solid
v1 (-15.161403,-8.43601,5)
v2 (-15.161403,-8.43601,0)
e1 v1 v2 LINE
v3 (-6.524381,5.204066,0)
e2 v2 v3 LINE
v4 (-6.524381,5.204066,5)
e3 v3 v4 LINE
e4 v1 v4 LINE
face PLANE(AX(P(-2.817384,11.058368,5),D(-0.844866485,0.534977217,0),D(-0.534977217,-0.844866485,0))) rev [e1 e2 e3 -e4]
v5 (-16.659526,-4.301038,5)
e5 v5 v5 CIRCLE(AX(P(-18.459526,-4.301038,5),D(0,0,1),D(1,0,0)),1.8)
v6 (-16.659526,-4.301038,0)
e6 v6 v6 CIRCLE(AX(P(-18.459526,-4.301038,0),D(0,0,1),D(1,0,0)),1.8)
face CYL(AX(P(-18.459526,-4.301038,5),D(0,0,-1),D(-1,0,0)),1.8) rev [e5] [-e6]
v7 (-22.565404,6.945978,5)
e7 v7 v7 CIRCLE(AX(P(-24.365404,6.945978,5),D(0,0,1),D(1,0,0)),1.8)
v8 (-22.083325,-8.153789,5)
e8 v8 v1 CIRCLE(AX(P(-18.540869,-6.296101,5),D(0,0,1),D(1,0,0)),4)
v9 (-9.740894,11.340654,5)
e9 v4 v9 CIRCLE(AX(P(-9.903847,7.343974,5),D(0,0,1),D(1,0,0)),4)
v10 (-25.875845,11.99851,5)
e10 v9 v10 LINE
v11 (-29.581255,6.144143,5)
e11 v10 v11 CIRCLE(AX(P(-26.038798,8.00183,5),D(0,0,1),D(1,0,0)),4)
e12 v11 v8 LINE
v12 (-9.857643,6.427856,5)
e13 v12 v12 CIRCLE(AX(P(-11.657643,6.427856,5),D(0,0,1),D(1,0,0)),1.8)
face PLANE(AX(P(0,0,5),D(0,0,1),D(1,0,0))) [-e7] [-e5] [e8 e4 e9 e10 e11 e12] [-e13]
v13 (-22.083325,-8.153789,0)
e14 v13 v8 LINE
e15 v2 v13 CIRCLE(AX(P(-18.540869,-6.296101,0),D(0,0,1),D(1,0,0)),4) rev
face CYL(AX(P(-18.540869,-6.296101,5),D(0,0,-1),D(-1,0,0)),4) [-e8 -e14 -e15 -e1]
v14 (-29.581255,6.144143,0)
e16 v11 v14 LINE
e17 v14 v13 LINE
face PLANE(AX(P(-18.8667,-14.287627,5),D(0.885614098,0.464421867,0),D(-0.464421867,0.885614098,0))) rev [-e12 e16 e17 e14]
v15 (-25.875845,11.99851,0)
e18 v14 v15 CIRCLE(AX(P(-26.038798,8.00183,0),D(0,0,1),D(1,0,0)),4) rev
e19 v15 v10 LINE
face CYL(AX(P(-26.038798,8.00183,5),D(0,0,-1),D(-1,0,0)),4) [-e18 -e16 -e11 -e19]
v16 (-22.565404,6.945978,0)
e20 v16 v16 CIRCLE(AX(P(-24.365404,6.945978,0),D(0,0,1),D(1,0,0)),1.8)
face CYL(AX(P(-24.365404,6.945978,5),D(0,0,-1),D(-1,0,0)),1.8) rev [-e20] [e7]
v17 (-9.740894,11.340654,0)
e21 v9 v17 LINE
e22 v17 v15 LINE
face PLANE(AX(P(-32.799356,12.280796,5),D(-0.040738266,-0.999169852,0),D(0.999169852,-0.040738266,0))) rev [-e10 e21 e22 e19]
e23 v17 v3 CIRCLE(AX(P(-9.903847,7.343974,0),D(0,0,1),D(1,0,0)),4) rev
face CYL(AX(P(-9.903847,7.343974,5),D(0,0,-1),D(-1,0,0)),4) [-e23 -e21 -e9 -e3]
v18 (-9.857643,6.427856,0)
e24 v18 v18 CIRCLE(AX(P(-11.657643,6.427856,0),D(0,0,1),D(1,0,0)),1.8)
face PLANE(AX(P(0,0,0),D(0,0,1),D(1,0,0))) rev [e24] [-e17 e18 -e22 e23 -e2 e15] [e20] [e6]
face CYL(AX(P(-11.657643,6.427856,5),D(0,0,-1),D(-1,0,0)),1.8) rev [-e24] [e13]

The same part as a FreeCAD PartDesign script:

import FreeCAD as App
import Part
import Sketcher


def edges_at(feature, points):
    """Names of the edges that pass closest to the given points."""
    edges = feature.Shape.Edges
    near = lambda p: min(range(len(edges)), key=lambda i: edges[i].distToShape(Part.Vertex(*p))[0])
    return sorted({f"Edge{near(p) + 1}" for p in points})

doc = App.newDocument("Part")
body = doc.addObject("PartDesign::Body", "Body")

# Sketch on XY plane
sketch1 = doc.addObject("Sketcher::SketchObject", "Sketch")
body.addObject(sketch1)
sketch1.AttachmentSupport = (doc.XY_Plane, [""])
sketch1.MapMode = "FlatFace"
sketch1.addGeometry(Part.LineSegment(App.Vector(-2.8, 11.1, 0), App.Vector(-32.8, 12.3, 0)), False)
sketch1.addGeometry(Part.LineSegment(App.Vector(-32.8, 12.3, 0), App.Vector(-18.9, -14.3, 0)), False)
sketch1.addGeometry(Part.LineSegment(App.Vector(-18.9, -14.3, 0), App.Vector(-2.8, 11.1, 0)), False)
sketch1.addGeometry(Part.Circle(App.Vector(-18.5, -4.3, 0), App.Vector(0, 0, 1), 1.8), False)
sketch1.addGeometry(Part.Circle(App.Vector(-11.7, 6.4, 0), App.Vector(0, 0, 1), 1.8), False)
sketch1.addGeometry(Part.Circle(App.Vector(-24.4, 6.9, 0), App.Vector(0, 0, 1), 1.8), False)
sketch1.addConstraint(Sketcher.Constraint("Coincident", 0, 2, 1, 1))
sketch1.addConstraint(Sketcher.Constraint("Coincident", 1, 2, 2, 1))
sketch1.addConstraint(Sketcher.Constraint("Coincident", 2, 2, 0, 1))
sketch1.addConstraint(Sketcher.Constraint("Equal", 3, 4))
sketch1.addConstraint(Sketcher.Constraint("Equal", 4, 5))
sketch1.addConstraint(Sketcher.Constraint("Equal", 1, 2))
sketch1.addConstraint(Sketcher.Constraint("Diameter", 3, 3.6))
sketch1.addConstraint(Sketcher.Constraint("Distance", 1, 30.0))
sketch1.addConstraint(Sketcher.Constraint("DistanceX", 1, 2, -1, 1, 18.8667))
sketch1.addConstraint(Sketcher.Constraint("DistanceX", 5, 3, 4, 3, 12.70776))
sketch1.addConstraint(Sketcher.Constraint("DistanceY", 5, 3, 0, 2, 5.334818))
sketch1.addConstraint(Sketcher.Constraint("DistanceX", 0, 2, 3, 3, 14.33983))
sketch1.addConstraint(Sketcher.Constraint("DistanceY", 4, 3, 0, 2, 5.85294))
sketch1.addConstraint(Sketcher.Constraint("DistanceY", 1, 2, 3, 3, 9.986589))
sketch1.addConstraint(Sketcher.Constraint("DistanceX", 4, 3, 2, 2, 8.84026))
sketch1.addConstraint(Sketcher.Constraint("DistanceY", 4, 3, 2, 2, 4.630512))
sketch1.addConstraint(Sketcher.Constraint("Distance", 0, 30.006883))
sketch1.addConstraint(Sketcher.Constraint("DistanceY", 3, 3, -1, 1, 4.301038))
pad1 = doc.addObject("PartDesign::Pad", "Pad")
body.addObject(pad1)
pad1.Profile = sketch1
pad1.Length = 5
doc.recompute()

fillet = doc.addObject("PartDesign::Fillet", "Fillet")
body.addObject(fillet)
fillet.Base = (pad1, edges_at(pad1, [(-32.799, 12.281, 2.5), (-2.817, 11.058, 2.5), (-18.867, -14.288, 2.5)]))
fillet.Radius = 4

doc.recompute()
